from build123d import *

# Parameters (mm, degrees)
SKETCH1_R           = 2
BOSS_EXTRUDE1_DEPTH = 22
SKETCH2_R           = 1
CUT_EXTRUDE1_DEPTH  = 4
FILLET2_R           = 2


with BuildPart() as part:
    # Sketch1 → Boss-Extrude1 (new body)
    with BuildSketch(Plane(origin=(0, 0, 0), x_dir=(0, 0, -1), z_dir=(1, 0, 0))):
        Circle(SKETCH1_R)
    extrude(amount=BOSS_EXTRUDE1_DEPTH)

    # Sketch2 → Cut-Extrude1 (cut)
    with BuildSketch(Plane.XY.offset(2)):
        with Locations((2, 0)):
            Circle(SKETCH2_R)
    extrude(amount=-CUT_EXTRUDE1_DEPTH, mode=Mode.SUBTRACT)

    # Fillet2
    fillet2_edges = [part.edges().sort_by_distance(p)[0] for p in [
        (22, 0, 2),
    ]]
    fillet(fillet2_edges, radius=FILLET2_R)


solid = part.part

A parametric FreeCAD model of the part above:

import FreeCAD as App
import Part
import Sketcher

V = App.Vector


def edges_at(feature, points):
    """Names of the edges that pass closest to the given points."""
    edges = feature.Shape.Edges
    near = lambda p: min(range(len(edges)), key=lambda i: edges[i].distToShape(Part.Vertex(*p))[0])
    return sorted({f"Edge{near(p) + 1}" for p in points})

doc = App.newDocument("Part")
params = doc.addObject("Spreadsheet::Sheet", "Params")
for row, (alias, value) in enumerate([
    ("sketch1_diameter", "4 mm"),
    ("pad1_length", "22 mm"),
    ("sketch2_diameter", "2 mm"),
    ("pocket1_length", "4 mm"),
    ("fillet_radius", "2 mm"),
], start=1):
    params.set(f"A{row}", alias)
    params.set(f"B{row}", "=" + value)
    params.setAlias(f"B{row}", alias)

body = doc.addObject("PartDesign::Body", "Body")

sketch1 = body.newObject("Sketcher::SketchObject", "Sketch")
sketch1.AttachmentSupport = (doc.getObject("YZ_Plane"), [""])
sketch1.MapMode = "FlatFace"
sketch1.addGeometry(Part.Circle(V(0, 0, 0), V(0, 0, 1), 2), False)
sketch1.addConstraint([
    Sketcher.Constraint("Coincident", 0, 3, -1, 1),
    Sketcher.Constraint("Diameter", 0, 4.0),
])
sketch1.setExpression("Constraints[1]", "Params.sketch1_diameter")
pad1 = body.newObject("PartDesign::Pad", "Pad")
pad1.Profile = sketch1
pad1.setExpression("Length", "Params.pad1_length")

sketch2 = body.newObject("Sketcher::SketchObject", "Sketch001")
sketch2.AttachmentSupport = (doc.getObject("XY_Plane"), [""])
sketch2.MapMode = "FlatFace"
sketch2.AttachmentOffset = App.Placement(V(0, 0, 2), App.Rotation())
sketch2.addGeometry(Part.Circle(V(2, 0, 0), V(0, 0, 1), 1), False)
sketch2.addConstraint([
    Sketcher.Constraint("PointOnObject", 0, 3, -1),
    Sketcher.Constraint("Diameter", 0, 2.0),
    Sketcher.Constraint("DistanceX", -1, 1, 0, 3, 2.0),
])
sketch2.setExpression("Constraints[1]", "Params.sketch2_diameter")
pocket1 = body.newObject("PartDesign::Pocket", "Pocket")
pocket1.Profile = sketch2
pocket1.setExpression("Length", "Params.pocket1_length")
doc.recompute()

fillet = body.newObject("PartDesign::Fillet", "Fillet")
fillet.Base = (pocket1, edges_at(pocket1, [(22, 0, 2)]))
fillet.setExpression("Radius", "Params.fillet_radius")

doc.recompute()
